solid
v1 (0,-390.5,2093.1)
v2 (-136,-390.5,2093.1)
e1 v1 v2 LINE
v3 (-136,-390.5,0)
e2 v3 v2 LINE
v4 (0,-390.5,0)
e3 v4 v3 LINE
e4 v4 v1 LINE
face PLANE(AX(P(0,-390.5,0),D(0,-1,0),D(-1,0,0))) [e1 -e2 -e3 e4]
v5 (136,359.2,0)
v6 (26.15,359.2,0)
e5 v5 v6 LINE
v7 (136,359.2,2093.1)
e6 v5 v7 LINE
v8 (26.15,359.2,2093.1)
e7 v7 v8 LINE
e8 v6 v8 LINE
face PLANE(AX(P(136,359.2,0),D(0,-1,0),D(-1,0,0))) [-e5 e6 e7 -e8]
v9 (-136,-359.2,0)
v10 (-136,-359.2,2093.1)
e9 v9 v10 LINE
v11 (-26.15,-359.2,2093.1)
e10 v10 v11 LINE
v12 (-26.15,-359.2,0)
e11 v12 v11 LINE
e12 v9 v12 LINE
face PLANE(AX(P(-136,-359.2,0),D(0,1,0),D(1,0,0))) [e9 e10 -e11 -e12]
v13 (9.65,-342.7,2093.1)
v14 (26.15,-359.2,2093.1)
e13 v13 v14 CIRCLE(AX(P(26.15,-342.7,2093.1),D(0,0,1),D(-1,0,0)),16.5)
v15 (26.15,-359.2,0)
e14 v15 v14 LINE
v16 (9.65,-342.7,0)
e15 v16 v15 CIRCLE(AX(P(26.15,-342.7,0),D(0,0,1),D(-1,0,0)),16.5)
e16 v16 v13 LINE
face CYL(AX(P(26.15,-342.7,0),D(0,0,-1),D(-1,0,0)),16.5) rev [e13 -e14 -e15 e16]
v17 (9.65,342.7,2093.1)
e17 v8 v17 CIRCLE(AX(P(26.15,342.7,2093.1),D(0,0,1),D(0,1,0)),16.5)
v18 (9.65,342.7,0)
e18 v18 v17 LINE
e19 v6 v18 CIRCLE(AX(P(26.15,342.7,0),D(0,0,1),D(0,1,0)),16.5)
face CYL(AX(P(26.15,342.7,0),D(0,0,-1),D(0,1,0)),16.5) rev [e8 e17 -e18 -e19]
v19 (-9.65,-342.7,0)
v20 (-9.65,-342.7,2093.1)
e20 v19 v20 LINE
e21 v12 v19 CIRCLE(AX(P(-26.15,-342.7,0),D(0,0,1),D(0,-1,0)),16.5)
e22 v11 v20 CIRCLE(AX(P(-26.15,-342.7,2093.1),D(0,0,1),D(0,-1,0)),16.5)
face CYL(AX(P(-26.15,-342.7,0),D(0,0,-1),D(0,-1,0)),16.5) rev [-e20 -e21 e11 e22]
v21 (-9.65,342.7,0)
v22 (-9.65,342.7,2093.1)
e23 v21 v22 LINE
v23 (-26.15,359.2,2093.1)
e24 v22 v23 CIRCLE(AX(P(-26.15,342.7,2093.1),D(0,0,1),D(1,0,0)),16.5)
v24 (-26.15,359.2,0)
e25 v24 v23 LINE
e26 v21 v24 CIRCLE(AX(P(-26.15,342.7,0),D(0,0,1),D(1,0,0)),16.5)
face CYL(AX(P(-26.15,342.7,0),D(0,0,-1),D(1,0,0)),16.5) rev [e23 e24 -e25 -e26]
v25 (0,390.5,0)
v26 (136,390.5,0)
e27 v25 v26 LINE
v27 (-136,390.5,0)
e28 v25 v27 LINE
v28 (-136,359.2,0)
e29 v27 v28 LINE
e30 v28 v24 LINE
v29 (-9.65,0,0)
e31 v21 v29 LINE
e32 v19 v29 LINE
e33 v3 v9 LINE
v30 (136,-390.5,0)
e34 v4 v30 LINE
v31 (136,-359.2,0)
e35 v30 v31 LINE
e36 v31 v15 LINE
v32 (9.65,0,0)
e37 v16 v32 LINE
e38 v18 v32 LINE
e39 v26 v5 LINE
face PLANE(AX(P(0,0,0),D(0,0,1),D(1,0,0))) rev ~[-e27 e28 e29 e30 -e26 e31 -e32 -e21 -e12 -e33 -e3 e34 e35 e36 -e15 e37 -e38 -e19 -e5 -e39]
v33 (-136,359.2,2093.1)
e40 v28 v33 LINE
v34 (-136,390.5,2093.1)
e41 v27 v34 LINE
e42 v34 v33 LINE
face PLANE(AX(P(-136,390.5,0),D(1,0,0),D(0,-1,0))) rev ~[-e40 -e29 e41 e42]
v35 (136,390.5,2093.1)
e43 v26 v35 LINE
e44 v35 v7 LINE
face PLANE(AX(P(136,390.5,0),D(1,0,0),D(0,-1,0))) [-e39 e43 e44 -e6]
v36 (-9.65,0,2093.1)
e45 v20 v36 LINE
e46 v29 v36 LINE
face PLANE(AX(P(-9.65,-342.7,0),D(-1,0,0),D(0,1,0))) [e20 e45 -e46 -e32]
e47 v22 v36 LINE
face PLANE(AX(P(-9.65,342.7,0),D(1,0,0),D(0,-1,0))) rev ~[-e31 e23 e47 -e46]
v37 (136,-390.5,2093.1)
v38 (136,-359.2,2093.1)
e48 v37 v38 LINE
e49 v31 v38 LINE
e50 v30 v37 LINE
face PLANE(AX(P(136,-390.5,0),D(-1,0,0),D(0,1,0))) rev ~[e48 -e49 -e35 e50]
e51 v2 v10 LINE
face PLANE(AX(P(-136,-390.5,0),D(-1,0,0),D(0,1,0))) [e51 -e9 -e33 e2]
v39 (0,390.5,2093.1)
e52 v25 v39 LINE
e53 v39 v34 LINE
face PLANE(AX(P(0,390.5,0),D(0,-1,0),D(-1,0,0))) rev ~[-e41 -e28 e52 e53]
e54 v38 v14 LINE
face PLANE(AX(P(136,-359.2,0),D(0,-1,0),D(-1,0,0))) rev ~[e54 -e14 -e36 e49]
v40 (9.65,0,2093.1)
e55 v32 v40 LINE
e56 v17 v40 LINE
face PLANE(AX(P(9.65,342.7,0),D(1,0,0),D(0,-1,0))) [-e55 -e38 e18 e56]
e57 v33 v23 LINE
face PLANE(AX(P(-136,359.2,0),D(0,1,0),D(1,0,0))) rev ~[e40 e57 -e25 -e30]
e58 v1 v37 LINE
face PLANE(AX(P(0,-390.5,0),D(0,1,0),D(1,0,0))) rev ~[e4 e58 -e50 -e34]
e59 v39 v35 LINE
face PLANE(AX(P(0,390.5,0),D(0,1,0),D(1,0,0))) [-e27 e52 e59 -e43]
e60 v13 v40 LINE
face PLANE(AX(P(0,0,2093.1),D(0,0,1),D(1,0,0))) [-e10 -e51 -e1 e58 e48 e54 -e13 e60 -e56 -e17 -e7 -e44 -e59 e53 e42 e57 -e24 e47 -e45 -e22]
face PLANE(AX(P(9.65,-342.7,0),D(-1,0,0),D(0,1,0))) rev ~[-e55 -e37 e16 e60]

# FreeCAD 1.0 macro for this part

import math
import FreeCAD as App
import Part
import Sketcher
Q = App.Units.Quantity

doc = App.newDocument("Part")
params = doc.addObject("Spreadsheet::Sheet", "Params")
for row, (alias, value) in enumerate([
    ("sketch1_radius", "16.5 mm"),
    ("sketch1_height", "31.3 mm"),
    ("pad1_length", "2093.1 mm"),
], start=1):
    params.set(f"A{row}", alias)
    params.set(f"B{row}", "=" + value)
    params.setAlias(f"B{row}", alias)

body = doc.addObject("PartDesign::Body", "Body")

sketch1 = body.newObject("Sketcher::SketchObject", "Sketch")
sketch1.AttachmentSupport = (doc.getObject("XY_Plane"), [""])
sketch1.MapMode = "FlatFace"
sketch1.addGeometry(Part.LineSegment(App.Vector(-136, -359, 0), App.Vector(-136, -390, 0)), False)
sketch1.addGeometry(Part.LineSegment(App.Vector(-136, -390, 0), App.Vector(136, -390, 0)), False)
sketch1.addGeometry(Part.LineSegment(App.Vector(136, -390, 0), App.Vector(136, -359, 0)), False)
sketch1.addGeometry(Part.LineSegment(App.Vector(136, -359, 0), App.Vector(26, -359, 0)), False)
sketch1.addGeometry(Part.ArcOfCircle(Part.Circle(App.Vector(26, -343, 0), App.Vector(0, 0, 1), 16), math.radians(180), math.radians(270)), False)
sketch1.addGeometry(Part.LineSegment(App.Vector(10, -343, 0), App.Vector(10, 343, 0)), False)
sketch1.addGeometry(Part.ArcOfCircle(Part.Circle(App.Vector(26, 343, 0), App.Vector(0, 0, 1), 16), math.radians(90), math.radians(180)), False)
sketch1.addGeometry(Part.LineSegment(App.Vector(26, 359, 0), App.Vector(136, 359, 0)), False)
sketch1.addGeometry(Part.LineSegment(App.Vector(136, 359, 0), App.Vector(136, 390, 0)), False)
sketch1.addGeometry(Part.LineSegment(App.Vector(136, 390, 0), App.Vector(-136, 390, 0)), False)
sketch1.addGeometry(Part.LineSegment(App.Vector(-136, 390, 0), App.Vector(-136, 359, 0)), False)
sketch1.addGeometry(Part.LineSegment(App.Vector(-136, 359, 0), App.Vector(-26, 359, 0)), False)
sketch1.addGeometry(Part.ArcOfCircle(Part.Circle(App.Vector(-26, 343, 0), App.Vector(0, 0, 1), 16), math.radians(0), math.radians(90)), False)
sketch1.addGeometry(Part.LineSegment(App.Vector(-10, 343, 0), App.Vector(-10, -343, 0)), False)
sketch1.addGeometry(Part.ArcOfCircle(Part.Circle(App.Vector(-26, -343, 0), App.Vector(0, 0, 1), 16), math.radians(-90), math.radians(0)), False)
sketch1.addGeometry(Part.LineSegment(App.Vector(-26, -359, 0), App.Vector(-136, -359, 0)), False)
sketch1.addConstraint(Sketcher.Constraint("Coincident", 0, 2, 1, 1))
sketch1.addConstraint(Sketcher.Constraint("Coincident", 1, 2, 2, 1))
sketch1.addConstraint(Sketcher.Constraint("Coincident", 2, 2, 3, 1))
sketch1.addConstraint(Sketcher.Constraint("Tangent", 3, 2, 4, 2))
sketch1.addConstraint(Sketcher.Constraint("Tangent", 4, 1, 5, 1))
sketch1.addConstraint(Sketcher.Constraint("Tangent", 5, 2, 6, 2))
sketch1.addConstraint(Sketcher.Constraint("Tangent", 6, 1, 7, 1))
sketch1.addConstraint(Sketcher.Constraint("Coincident", 7, 2, 8, 1))
sketch1.addConstraint(Sketcher.Constraint("Coincident", 8, 2, 9, 1))
sketch1.addConstraint(Sketcher.Constraint("Coincident", 9, 2, 10, 1))
sketch1.addConstraint(Sketcher.Constraint("Coincident", 10, 2, 11, 1))
sketch1.addConstraint(Sketcher.Constraint("Tangent", 11, 2, 12, 2))
sketch1.addConstraint(Sketcher.Constraint("Tangent", 12, 1, 13, 1))
sketch1.addConstraint(Sketcher.Constraint("Tangent", 13, 2, 14, 2))
sketch1.addConstraint(Sketcher.Constraint("Tangent", 14, 1, 15, 1))
sketch1.addConstraint(Sketcher.Constraint("Coincident", 15, 2, 0, 1))
sketch1.addConstraint(Sketcher.Constraint("Vertical", 0))
sketch1.addConstraint(Sketcher.Constraint("Horizontal", 1))
sketch1.addConstraint(Sketcher.Constraint("Vertical", 2))
sketch1.addConstraint(Sketcher.Constraint("Horizontal", 3))
sketch1.addConstraint(Sketcher.Constraint("Vertical", 5))
sketch1.addConstraint(Sketcher.Constraint("Horizontal", 7))
sketch1.addConstraint(Sketcher.Constraint("Vertical", 8))
sketch1.addConstraint(Sketcher.Constraint("Horizontal", 9))
sketch1.addConstraint(Sketcher.Constraint("Vertical", 10))
sketch1.addConstraint(Sketcher.Constraint("Horizontal", 11))
sketch1.addConstraint(Sketcher.Constraint("Vertical", 13))
sketch1.addConstraint(Sketcher.Constraint("Horizontal", 15))
sketch1.addConstraint(Sketcher.Constraint("Equal", 4, 6))
sketch1.addConstraint(Sketcher.Constraint("Equal", 6, 12))
sketch1.addConstraint(Sketcher.Constraint("Equal", 12, 14))
sketch1.addConstraint(Sketcher.Constraint("Symmetric", 4, 3, 12, 3, -1, 1))
sketch1.addConstraint(Sketcher.Constraint("Symmetric", 0, 2, 8, 2, -1, 1))
sketch1.addConstraint(Sketcher.Constraint("Symmetric", 7, 2, 10, 2, -2))
sketch1.addConstraint(Sketcher.Constraint("Symmetric", 2, 2, 15, 2, -2))
sketch1.addConstraint(Sketcher.Constraint("Radius", 4, Q("16.5 mm")))
sketch1.addConstraint(Sketcher.Constraint("DistanceY", 0, 2, 0, 1, Q("31.3 mm")))
sketch1.addConstraint(Sketcher.Constraint("DistanceX", 0, 2, -1, 1, Q("136 mm")))
sketch1.addConstraint(Sketcher.Constraint("DistanceY", 0, 2, -1, 1, Q("390.5 mm")))
sketch1.addConstraint(Sketcher.Constraint("DistanceX", -1, 1, 4, 1, Q("9.65 mm")))
sketch1.setExpression("Constraints[35]", "Params.sketch1_radius")
sketch1.setExpression("Constraints[36]", "Params.sketch1_height")
pad1 = body.newObject("PartDesign::Pad", "Pad")
pad1.Profile = sketch1
pad1.setExpression("Length", "Params.pad1_length")

doc.recompute()
